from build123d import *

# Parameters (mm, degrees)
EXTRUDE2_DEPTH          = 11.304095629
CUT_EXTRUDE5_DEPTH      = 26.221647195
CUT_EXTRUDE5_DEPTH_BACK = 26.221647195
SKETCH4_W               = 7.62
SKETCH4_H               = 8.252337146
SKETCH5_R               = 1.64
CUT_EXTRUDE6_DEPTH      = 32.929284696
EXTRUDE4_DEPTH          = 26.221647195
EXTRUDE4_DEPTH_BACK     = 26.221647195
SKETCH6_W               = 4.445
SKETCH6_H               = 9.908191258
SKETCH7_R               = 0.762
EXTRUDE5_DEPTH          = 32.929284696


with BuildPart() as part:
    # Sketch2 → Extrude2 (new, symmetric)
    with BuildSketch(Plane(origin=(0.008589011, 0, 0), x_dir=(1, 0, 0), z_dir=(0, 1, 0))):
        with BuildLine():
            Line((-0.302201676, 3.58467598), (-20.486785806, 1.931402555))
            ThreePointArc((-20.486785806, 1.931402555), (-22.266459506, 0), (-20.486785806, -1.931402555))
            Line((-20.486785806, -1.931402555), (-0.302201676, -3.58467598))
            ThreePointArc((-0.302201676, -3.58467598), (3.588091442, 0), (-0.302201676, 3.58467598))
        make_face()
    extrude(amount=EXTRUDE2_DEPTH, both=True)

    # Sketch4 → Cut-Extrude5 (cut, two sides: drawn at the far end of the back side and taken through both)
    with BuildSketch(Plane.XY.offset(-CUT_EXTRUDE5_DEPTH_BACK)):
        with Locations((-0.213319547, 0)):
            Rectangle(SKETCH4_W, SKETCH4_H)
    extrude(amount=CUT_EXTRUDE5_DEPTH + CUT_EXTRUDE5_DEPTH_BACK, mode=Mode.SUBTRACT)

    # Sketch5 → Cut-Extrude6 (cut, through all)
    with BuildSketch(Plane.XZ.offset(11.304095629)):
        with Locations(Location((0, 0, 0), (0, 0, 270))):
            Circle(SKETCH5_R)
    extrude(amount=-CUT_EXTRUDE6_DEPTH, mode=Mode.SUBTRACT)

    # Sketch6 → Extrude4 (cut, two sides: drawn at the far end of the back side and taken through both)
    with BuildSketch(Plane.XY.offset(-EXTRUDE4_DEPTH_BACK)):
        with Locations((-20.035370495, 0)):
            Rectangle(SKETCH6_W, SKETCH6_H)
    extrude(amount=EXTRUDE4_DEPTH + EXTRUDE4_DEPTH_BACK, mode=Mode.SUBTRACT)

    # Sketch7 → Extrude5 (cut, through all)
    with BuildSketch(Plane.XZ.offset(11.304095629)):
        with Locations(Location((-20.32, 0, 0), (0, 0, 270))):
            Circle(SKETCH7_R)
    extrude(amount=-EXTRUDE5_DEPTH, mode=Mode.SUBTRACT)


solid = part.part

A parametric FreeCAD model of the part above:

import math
import FreeCAD as App
import Part
import Sketcher

V = App.Vector
Q = App.Units.Quantity

doc = App.newDocument("Part")
body = doc.addObject("PartDesign::Body", "Body")

# Sketch on XZ plane
sketch1 = doc.addObject("Sketcher::SketchObject", "Sketch")
body.addObject(sketch1)
sketch1.AttachmentSupport = (doc.XZ_Plane, [""])
sketch1.MapMode = "FlatFace"
sketch1.addGeometry([
    Part.LineSegment(V(-0.293613, -3.584676, 0), V(-20.478197, -1.931403, 0)),
    Part.ArcOfCircle(Part.Circle(V(-20.32, 0, 0), V(0, 0, 1), 1.93787), math.radians(94.682514), math.radians(265.317486)),
    Part.LineSegment(V(-20.478197, 1.931403, 0), V(-0.293613, 3.584676, 0)),
    Part.ArcOfCircle(Part.Circle(V(0, 0, 0), V(0, 0, 1), 3.59668), math.radians(-94.682514), math.radians(94.682514)),
], False)
sketch1.addConstraint([
    Sketcher.Constraint("Tangent", 0, 2, 1, 2),
    Sketcher.Constraint("Tangent", 1, 1, 2, 1),
    Sketcher.Constraint("Tangent", 2, 2, 3, 2),
    Sketcher.Constraint("Tangent", 3, 1, 0, 1),
    Sketcher.Constraint("Coincident", 3, 3, -1, 1),
    Sketcher.Constraint("PointOnObject", 1, 3, -1),
    Sketcher.Constraint("DistanceX", 1, 3, -1, 1, Q("0.8 in")),
    Sketcher.Constraint("Radius", 1, 1.93787),
    Sketcher.Constraint("Radius", 3, 3.59668),
])
pad1 = doc.addObject("PartDesign::Pad", "Pad")
body.addObject(pad1)
pad1.Profile = sketch1
pad1.Length = 22.608191
pad1.Midplane = True

# Sketch on XY plane
sketch2 = doc.addObject("Sketcher::SketchObject", "Sketch001")
body.addObject(sketch2)
sketch2.AttachmentSupport = (doc.XY_Plane, [""])
sketch2.MapMode = "FlatFace"
sketch2.addGeometry([
    Part.LineSegment(V(-4.02332, 4.126169, 0), V(-4.02332, -4.126169, 0)),
    Part.LineSegment(V(-4.02332, -4.126169, 0), V(3.59668, -4.126169, 0)),
    Part.LineSegment(V(3.59668, -4.126169, 0), V(3.59668, 4.126169, 0)),
    Part.LineSegment(V(3.59668, 4.126169, 0), V(-4.02332, 4.126169, 0)),
], False)
sketch2.addConstraint([
    Sketcher.Constraint("Coincident", 0, 2, 1, 1),
    Sketcher.Constraint("Coincident", 1, 2, 2, 1),
    Sketcher.Constraint("Coincident", 2, 2, 3, 1),
    Sketcher.Constraint("Coincident", 3, 2, 0, 1),
    Sketcher.Constraint("Vertical", 0),
    Sketcher.Constraint("Horizontal", 1),
    Sketcher.Constraint("Vertical", 2),
    Sketcher.Constraint("Horizontal", 3),
    Sketcher.Constraint("DistanceX", 1, 1, 1, 2, Q("0.3 in")),
    Sketcher.Constraint("DistanceY", 0, 2, 0, 1, 8.252337),
    Sketcher.Constraint("DistanceX", 0, 2, -1, 1, 4.02332),
    Sketcher.Constraint("DistanceY", 0, 2, -1, 1, 4.126169),
])
pocket1 = doc.addObject("PartDesign::Pocket", "Pocket")
body.addObject(pocket1)
pocket1.Profile = sketch2
pocket1.Type = "ThroughAll"
pocket1.Midplane = True

# Sketch on XZ plane
sketch3 = doc.addObject("Sketcher::SketchObject", "Sketch002")
body.addObject(sketch3)
sketch3.AttachmentSupport = (doc.XZ_Plane, [""])
sketch3.MapMode = "FlatFace"
sketch3.AttachmentOffset = App.Placement(V(0, 0, 11.304096), App.Rotation())
sketch3.addGeometry(Part.Circle(V(0, 0, 0), V(0, 0, 1), 1.64), False)
sketch3.addConstraint([
    Sketcher.Constraint("Coincident", 0, 3, -1, 1),
    Sketcher.Constraint("Diameter", 0, 3.28),
])
pocket2 = doc.addObject("PartDesign::Pocket", "Pocket001")
body.addObject(pocket2)
pocket2.Profile = sketch3
pocket2.Type = "ThroughAll"

# Sketch on XY plane
sketch4 = doc.addObject("Sketcher::SketchObject", "Sketch003")
body.addObject(sketch4)
sketch4.AttachmentSupport = (doc.XY_Plane, [""])
sketch4.MapMode = "FlatFace"
sketch4.addGeometry([
    Part.LineSegment(V(-22.25787, 4.954096, 0), V(-22.25787, -4.954096, 0)),
    Part.LineSegment(V(-22.25787, -4.954096, 0), V(-17.81287, -4.954096, 0)),
    Part.LineSegment(V(-17.81287, -4.954096, 0), V(-17.81287, 4.954096, 0)),
    Part.LineSegment(V(-17.81287, 4.954096, 0), V(-22.25787, 4.954096, 0)),
], False)
sketch4.addConstraint([
    Sketcher.Constraint("Coincident", 0, 2, 1, 1),
    Sketcher.Constraint("Coincident", 1, 2, 2, 1),
    Sketcher.Constraint("Coincident", 2, 2, 3, 1),
    Sketcher.Constraint("Coincident", 3, 2, 0, 1),
    Sketcher.Constraint("Vertical", 0),
    Sketcher.Constraint("Horizontal", 1),
    Sketcher.Constraint("Vertical", 2),
    Sketcher.Constraint("Horizontal", 3),
    Sketcher.Constraint("DistanceX", 1, 1, 1, 2, Q("0.175 in")),
    Sketcher.Constraint("DistanceY", 0, 2, 0, 1, 9.908191),
    Sketcher.Constraint("DistanceX", 0, 2, -1, 1, 22.25787),
    Sketcher.Constraint("DistanceY", 0, 2, -1, 1, 4.954096),
])
pocket3 = doc.addObject("PartDesign::Pocket", "Pocket002")
body.addObject(pocket3)
pocket3.Profile = sketch4
pocket3.Type = "ThroughAll"
pocket3.Midplane = True

# Sketch on XZ plane
sketch5 = doc.addObject("Sketcher::SketchObject", "Sketch004")
body.addObject(sketch5)
sketch5.AttachmentSupport = (doc.XZ_Plane, [""])
sketch5.MapMode = "FlatFace"
sketch5.AttachmentOffset = App.Placement(V(0, 0, 11.304096), App.Rotation())
sketch5.addGeometry(Part.Circle(V(-20.32, 0, 0), V(0, 0, 1), 0.762), False)
sketch5.addConstraint([
    Sketcher.Constraint("PointOnObject", 0, 3, -1),
    Sketcher.Constraint("Diameter", 0, Q("0.06 in")),
    Sketcher.Constraint("DistanceX", 0, 3, -1, 1, Q("0.8 in")),
])
pocket4 = doc.addObject("PartDesign::Pocket", "Pocket003")
body.addObject(pocket4)
pocket4.Profile = sketch5
pocket4.Type = "ThroughAll"

doc.recompute()
